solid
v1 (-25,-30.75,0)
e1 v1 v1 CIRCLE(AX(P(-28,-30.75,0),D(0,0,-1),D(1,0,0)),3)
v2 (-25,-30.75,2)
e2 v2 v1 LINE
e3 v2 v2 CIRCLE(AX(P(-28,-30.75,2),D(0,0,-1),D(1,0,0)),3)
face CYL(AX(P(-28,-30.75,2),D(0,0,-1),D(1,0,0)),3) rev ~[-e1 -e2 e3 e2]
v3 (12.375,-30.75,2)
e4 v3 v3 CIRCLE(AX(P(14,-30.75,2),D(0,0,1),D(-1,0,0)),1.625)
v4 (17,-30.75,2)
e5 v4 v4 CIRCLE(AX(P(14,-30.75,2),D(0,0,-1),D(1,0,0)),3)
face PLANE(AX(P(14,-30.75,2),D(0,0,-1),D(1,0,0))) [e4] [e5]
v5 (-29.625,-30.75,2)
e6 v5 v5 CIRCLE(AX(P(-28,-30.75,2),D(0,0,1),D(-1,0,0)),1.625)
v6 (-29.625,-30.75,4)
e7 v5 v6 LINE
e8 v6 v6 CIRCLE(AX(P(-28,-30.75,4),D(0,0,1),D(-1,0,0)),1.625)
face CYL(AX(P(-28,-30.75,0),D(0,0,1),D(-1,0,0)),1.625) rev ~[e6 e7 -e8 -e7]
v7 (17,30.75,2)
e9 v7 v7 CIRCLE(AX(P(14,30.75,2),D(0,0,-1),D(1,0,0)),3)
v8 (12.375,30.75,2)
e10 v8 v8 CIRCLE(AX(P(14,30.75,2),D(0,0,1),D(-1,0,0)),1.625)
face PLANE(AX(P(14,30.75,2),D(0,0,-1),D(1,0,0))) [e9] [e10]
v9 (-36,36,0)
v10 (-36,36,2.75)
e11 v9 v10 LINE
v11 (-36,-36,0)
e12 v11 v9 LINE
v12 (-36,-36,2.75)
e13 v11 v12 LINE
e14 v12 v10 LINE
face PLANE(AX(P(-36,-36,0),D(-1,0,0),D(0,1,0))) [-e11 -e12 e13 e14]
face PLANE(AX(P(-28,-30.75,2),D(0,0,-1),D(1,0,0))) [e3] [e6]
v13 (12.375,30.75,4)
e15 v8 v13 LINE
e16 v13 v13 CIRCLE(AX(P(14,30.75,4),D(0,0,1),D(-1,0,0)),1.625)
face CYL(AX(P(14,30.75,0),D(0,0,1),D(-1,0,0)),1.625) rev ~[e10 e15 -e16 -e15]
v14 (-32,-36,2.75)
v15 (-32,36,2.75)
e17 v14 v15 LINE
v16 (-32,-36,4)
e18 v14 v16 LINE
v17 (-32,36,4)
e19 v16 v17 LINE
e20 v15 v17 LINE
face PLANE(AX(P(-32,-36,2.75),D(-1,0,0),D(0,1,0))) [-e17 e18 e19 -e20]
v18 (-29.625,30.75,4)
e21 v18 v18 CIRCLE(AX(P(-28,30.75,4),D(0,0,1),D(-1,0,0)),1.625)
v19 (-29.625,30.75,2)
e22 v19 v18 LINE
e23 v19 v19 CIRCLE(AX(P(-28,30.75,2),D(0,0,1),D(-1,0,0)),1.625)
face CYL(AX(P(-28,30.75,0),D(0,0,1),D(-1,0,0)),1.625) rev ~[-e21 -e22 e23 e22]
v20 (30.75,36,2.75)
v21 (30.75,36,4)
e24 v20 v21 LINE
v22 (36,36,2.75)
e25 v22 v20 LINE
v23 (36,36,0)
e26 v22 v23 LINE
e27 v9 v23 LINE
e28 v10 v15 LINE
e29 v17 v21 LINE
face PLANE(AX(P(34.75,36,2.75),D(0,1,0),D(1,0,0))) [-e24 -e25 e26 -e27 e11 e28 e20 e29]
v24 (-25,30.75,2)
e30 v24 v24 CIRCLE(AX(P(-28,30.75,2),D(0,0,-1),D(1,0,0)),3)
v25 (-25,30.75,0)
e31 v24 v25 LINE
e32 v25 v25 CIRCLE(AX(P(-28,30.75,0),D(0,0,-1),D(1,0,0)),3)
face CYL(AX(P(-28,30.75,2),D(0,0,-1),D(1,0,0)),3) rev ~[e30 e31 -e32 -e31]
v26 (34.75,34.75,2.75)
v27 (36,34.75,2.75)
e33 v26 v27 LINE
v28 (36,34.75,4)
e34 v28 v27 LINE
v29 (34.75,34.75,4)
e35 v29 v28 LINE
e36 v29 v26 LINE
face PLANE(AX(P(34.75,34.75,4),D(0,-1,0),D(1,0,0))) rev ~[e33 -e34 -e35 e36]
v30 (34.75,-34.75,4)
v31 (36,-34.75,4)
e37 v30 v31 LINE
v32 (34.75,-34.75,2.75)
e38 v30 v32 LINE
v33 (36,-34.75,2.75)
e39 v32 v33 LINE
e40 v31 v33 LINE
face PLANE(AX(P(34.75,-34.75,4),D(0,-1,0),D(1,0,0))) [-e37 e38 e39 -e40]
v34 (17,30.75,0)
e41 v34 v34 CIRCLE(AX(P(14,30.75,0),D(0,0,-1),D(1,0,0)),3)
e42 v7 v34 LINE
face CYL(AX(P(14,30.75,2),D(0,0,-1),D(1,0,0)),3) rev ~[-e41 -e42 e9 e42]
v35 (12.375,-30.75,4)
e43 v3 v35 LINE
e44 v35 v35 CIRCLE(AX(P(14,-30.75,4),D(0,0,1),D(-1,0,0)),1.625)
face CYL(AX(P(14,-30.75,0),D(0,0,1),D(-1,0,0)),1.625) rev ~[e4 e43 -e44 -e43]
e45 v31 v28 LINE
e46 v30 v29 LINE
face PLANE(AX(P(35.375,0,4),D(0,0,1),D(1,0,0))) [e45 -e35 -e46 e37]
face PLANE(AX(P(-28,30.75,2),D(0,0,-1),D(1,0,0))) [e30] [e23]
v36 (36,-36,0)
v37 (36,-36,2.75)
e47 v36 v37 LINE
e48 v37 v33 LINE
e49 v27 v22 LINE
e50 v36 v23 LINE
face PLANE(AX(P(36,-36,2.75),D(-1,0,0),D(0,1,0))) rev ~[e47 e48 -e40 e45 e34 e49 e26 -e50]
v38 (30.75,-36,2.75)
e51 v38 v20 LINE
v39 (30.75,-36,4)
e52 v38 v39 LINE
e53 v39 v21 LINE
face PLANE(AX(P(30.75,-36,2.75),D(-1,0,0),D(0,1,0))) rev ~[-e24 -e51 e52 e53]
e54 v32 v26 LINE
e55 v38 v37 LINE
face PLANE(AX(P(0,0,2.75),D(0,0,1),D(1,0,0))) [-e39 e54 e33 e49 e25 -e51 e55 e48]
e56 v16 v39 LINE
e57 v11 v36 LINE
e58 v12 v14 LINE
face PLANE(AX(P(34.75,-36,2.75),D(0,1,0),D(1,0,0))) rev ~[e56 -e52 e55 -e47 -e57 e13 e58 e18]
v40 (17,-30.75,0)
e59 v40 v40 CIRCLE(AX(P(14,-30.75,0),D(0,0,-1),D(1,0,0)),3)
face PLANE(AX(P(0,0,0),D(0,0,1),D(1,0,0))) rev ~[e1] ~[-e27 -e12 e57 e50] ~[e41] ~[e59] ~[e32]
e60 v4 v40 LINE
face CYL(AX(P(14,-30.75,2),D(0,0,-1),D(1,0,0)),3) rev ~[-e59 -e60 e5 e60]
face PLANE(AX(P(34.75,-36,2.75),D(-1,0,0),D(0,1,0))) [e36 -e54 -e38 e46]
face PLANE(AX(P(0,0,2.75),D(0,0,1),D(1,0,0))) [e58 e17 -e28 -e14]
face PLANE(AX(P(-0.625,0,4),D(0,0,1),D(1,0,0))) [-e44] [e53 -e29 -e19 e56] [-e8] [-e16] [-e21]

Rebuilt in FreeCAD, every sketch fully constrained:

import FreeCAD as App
import Part
import Sketcher

doc = App.newDocument("Part")
body = doc.addObject("PartDesign::Body", "Body")

# Sketch on XY plane
sketch1 = body.newObject("Sketcher::SketchObject", "Sketch")
sketch1.AttachmentSupport = (doc.getObject("XY_Plane"), [""])
sketch1.MapMode = "FlatFace"
sketch1.addGeometry(Part.LineSegment(App.Vector(-36, 36, 0), App.Vector(-36, -36, 0)), False)
sketch1.addGeometry(Part.LineSegment(App.Vector(-36, -36, 0), App.Vector(36, -36, 0)), False)
sketch1.addGeometry(Part.LineSegment(App.Vector(36, -36, 0), App.Vector(36, 36, 0)), False)
sketch1.addGeometry(Part.LineSegment(App.Vector(36, 36, 0), App.Vector(-36, 36, 0)), False)
sketch1.addConstraint(Sketcher.Constraint("Coincident", 0, 2, 1, 1))
sketch1.addConstraint(Sketcher.Constraint("Coincident", 1, 2, 2, 1))
sketch1.addConstraint(Sketcher.Constraint("Coincident", 2, 2, 3, 1))
sketch1.addConstraint(Sketcher.Constraint("Coincident", 3, 2, 0, 1))
sketch1.addConstraint(Sketcher.Constraint("Vertical", 0))
sketch1.addConstraint(Sketcher.Constraint("Horizontal", 1))
sketch1.addConstraint(Sketcher.Constraint("Vertical", 2))
sketch1.addConstraint(Sketcher.Constraint("Horizontal", 3))
sketch1.addConstraint(Sketcher.Constraint("Symmetric", 0, 2, 2, 2, -1, 1))
sketch1.addConstraint(Sketcher.Constraint("Equal", 3, 0))
sketch1.addConstraint(Sketcher.Constraint("DistanceX", 1, 1, 1, 2, 72.0))
pad1 = body.newObject("PartDesign::Pad", "Pad")
pad1.Profile = sketch1
pad1.Length = 2.75

# Sketch on XY plane
sketch2 = body.newObject("Sketcher::SketchObject", "Sketch001")
sketch2.AttachmentSupport = (doc.getObject("XY_Plane"), [""])
sketch2.MapMode = "FlatFace"
sketch2.AttachmentOffset = App.Placement(App.Vector(0, 0, 2.75), App.Rotation())
sketch2.addGeometry(Part.LineSegment(App.Vector(-32, 36, 0), App.Vector(-32, -36, 0)), False)
sketch2.addGeometry(Part.LineSegment(App.Vector(-32, -36, 0), App.Vector(30.75, -36, 0)), False)
sketch2.addGeometry(Part.LineSegment(App.Vector(30.75, -36, 0), App.Vector(30.75, 36, 0)), False)
sketch2.addGeometry(Part.LineSegment(App.Vector(30.75, 36, 0), App.Vector(-32, 36, 0)), False)
sketch2.addGeometry(Part.LineSegment(App.Vector(34.75, 36, 0), App.Vector(34.75, -36, 0)), False)
sketch2.addGeometry(Part.LineSegment(App.Vector(34.75, -36, 0), App.Vector(36, -36, 0)), False)
sketch2.addGeometry(Part.LineSegment(App.Vector(36, -36, 0), App.Vector(36, 36, 0)), False)
sketch2.addGeometry(Part.LineSegment(App.Vector(36, 36, 0), App.Vector(34.75, 36, 0)), False)
sketch2.addConstraint(Sketcher.Constraint("Coincident", 0, 2, 1, 1))
sketch2.addConstraint(Sketcher.Constraint("Coincident", 1, 2, 2, 1))
sketch2.addConstraint(Sketcher.Constraint("Coincident", 2, 2, 3, 1))
sketch2.addConstraint(Sketcher.Constraint("Coincident", 3, 2, 0, 1))
sketch2.addConstraint(Sketcher.Constraint("Coincident", 4, 2, 5, 1))
sketch2.addConstraint(Sketcher.Constraint("Coincident", 5, 2, 6, 1))
sketch2.addConstraint(Sketcher.Constraint("Coincident", 6, 2, 7, 1))
sketch2.addConstraint(Sketcher.Constraint("Coincident", 7, 2, 4, 1))
sketch2.addConstraint(Sketcher.Constraint("Vertical", 0))
sketch2.addConstraint(Sketcher.Constraint("Horizontal", 1))
sketch2.addConstraint(Sketcher.Constraint("Vertical", 2))
sketch2.addConstraint(Sketcher.Constraint("Horizontal", 3))
sketch2.addConstraint(Sketcher.Constraint("Vertical", 4))
sketch2.addConstraint(Sketcher.Constraint("Horizontal", 5))
sketch2.addConstraint(Sketcher.Constraint("Vertical", 6))
sketch2.addConstraint(Sketcher.Constraint("Horizontal", 7))
sketch2.addConstraint(Sketcher.Constraint("Horizontal", 1, 2, 4, 2))
sketch2.addConstraint(Sketcher.Constraint("Horizontal", 3, 2, 6, 2))
sketch2.addConstraint(Sketcher.Constraint("DistanceY", 0, 2, 0, 1, 72.0))
sketch2.addConstraint(Sketcher.Constraint("DistanceX", 0, 2, -1, 1, 32.0))
sketch2.addConstraint(Sketcher.Constraint("DistanceY", 0, 2, -1, 1, 36.0))
sketch2.addConstraint(Sketcher.Constraint("DistanceX", -1, 1, 5, 2, 36.0))
sketch2.addConstraint(Sketcher.Constraint("DistanceX", 1, 2, 4, 2, 4.0))
sketch2.addConstraint(Sketcher.Constraint("DistanceX", 1, 1, 1, 2, 62.75))
pad2 = body.newObject("PartDesign::Pad", "Pad001")
pad2.Profile = sketch2
pad2.Length = 1.25

# Sketch on XY plane
sketch3 = body.newObject("Sketcher::SketchObject", "Sketch002")
sketch3.AttachmentSupport = (doc.getObject("XY_Plane"), [""])
sketch3.MapMode = "FlatFace"
sketch3.addGeometry(Part.Circle(App.Vector(-28, 30.75, 0), App.Vector(0, 0, 1), 1.625), False)
sketch3.addGeometry(Part.Circle(App.Vector(14, 30.75, 0), App.Vector(0, 0, 1), 1.625), False)
sketch3.addGeometry(Part.Circle(App.Vector(-28, -30.75, 0), App.Vector(0, 0, 1), 1.625), False)
sketch3.addGeometry(Part.Circle(App.Vector(14, -30.75, 0), App.Vector(0, 0, 1), 1.625), False)
sketch3.addConstraint(Sketcher.Constraint("Equal", 0, 1))
sketch3.addConstraint(Sketcher.Constraint("Equal", 1, 2))
sketch3.addConstraint(Sketcher.Constraint("Equal", 2, 3))
sketch3.addConstraint(Sketcher.Constraint("Symmetric", 0, 3, 2, 3, -1))
sketch3.addConstraint(Sketcher.Constraint("Symmetric", 1, 3, 3, 3, -1))
sketch3.addConstraint(Sketcher.Constraint("Horizontal", 0, 3, 1, 3))
sketch3.addConstraint(Sketcher.Constraint("Diameter", 0, 3.25))
sketch3.addConstraint(Sketcher.Constraint("DistanceX", 0, 3, -1, 1, 28.0))
sketch3.addConstraint(Sketcher.Constraint("DistanceX", -1, 1, 1, 3, 14.0))
sketch3.addConstraint(Sketcher.Constraint("DistanceY", 2, 3, 0, 3, 61.5))
doc.recompute()
hole = body.newObject("PartDesign::Hole", "Hole")
hole.Profile = sketch3
hole.ThreadType = "None"
hole.Diameter = 3.25
hole.DepthType = "Dimension"
hole.Depth = 8
hole.DrillPoint = "Flat"
hole.HoleCutType = "Counterbore"
hole.HoleCutDiameter = 6
hole.HoleCutDepth = 2
hole.Reversed = True

# Sketch on XY plane
sketch4 = body.newObject("Sketcher::SketchObject", "Sketch003")
sketch4.AttachmentSupport = (doc.getObject("XY_Plane"), [""])
sketch4.MapMode = "FlatFace"
sketch4.AttachmentOffset = App.Placement(App.Vector(0, 0, 4), App.Rotation())
sketch4.addGeometry(Part.LineSegment(App.Vector(34.75, 36, 0), App.Vector(34.75, 34.75, 0)), False)
sketch4.addGeometry(Part.LineSegment(App.Vector(34.75, 34.75, 0), App.Vector(36, 34.75, 0)), False)
sketch4.addGeometry(Part.LineSegment(App.Vector(36, 34.75, 0), App.Vector(36, 36, 0)), False)
sketch4.addGeometry(Part.LineSegment(App.Vector(36, 36, 0), App.Vector(34.75, 36, 0)), False)
sketch4.addGeometry(Part.LineSegment(App.Vector(34.75, -34.75, 0), App.Vector(34.75, -36, 0)), False)
sketch4.addGeometry(Part.LineSegment(App.Vector(34.75, -36, 0), App.Vector(36, -36, 0)), False)
sketch4.addGeometry(Part.LineSegment(App.Vector(36, -36, 0), App.Vector(36, -34.75, 0)), False)
sketch4.addGeometry(Part.LineSegment(App.Vector(36, -34.75, 0), App.Vector(34.75, -34.75, 0)), False)
sketch4.addConstraint(Sketcher.Constraint("Coincident", 0, 2, 1, 1))
sketch4.addConstraint(Sketcher.Constraint("Coincident", 1, 2, 2, 1))
sketch4.addConstraint(Sketcher.Constraint("Coincident", 2, 2, 3, 1))
sketch4.addConstraint(Sketcher.Constraint("Coincident", 3, 2, 0, 1))
sketch4.addConstraint(Sketcher.Constraint("Coincident", 4, 2, 5, 1))
sketch4.addConstraint(Sketcher.Constraint("Coincident", 5, 2, 6, 1))
sketch4.addConstraint(Sketcher.Constraint("Coincident", 6, 2, 7, 1))
sketch4.addConstraint(Sketcher.Constraint("Coincident", 7, 2, 4, 1))
sketch4.addConstraint(Sketcher.Constraint("Vertical", 0))
sketch4.addConstraint(Sketcher.Constraint("Horizontal", 1))
sketch4.addConstraint(Sketcher.Constraint("Vertical", 2))
sketch4.addConstraint(Sketcher.Constraint("Horizontal", 3))
sketch4.addConstraint(Sketcher.Constraint("Vertical", 4))
sketch4.addConstraint(Sketcher.Constraint("Horizontal", 5))
sketch4.addConstraint(Sketcher.Constraint("Vertical", 6))
sketch4.addConstraint(Sketcher.Constraint("Horizontal", 7))
sketch4.addConstraint(Sketcher.Constraint("Symmetric", 3, 2, 4, 2, -1))
sketch4.addConstraint(Sketcher.Constraint("Symmetric", 1, 2, 6, 2, -1))
sketch4.addConstraint(Sketcher.Constraint("Equal", 7, 0))
sketch4.addConstraint(Sketcher.Constraint("DistanceX", -1, 1, 1, 2, 36.0))
sketch4.addConstraint(Sketcher.Constraint("DistanceY", -1, 1, 2, 2, 36.0))
sketch4.addConstraint(Sketcher.Constraint("DistanceX", 1, 1, 1, 2, 1.25))
pocket1 = body.newObject("PartDesign::Pocket", "Pocket")
pocket1.Profile = sketch4
pocket1.Length = 1.25

doc.recompute()
